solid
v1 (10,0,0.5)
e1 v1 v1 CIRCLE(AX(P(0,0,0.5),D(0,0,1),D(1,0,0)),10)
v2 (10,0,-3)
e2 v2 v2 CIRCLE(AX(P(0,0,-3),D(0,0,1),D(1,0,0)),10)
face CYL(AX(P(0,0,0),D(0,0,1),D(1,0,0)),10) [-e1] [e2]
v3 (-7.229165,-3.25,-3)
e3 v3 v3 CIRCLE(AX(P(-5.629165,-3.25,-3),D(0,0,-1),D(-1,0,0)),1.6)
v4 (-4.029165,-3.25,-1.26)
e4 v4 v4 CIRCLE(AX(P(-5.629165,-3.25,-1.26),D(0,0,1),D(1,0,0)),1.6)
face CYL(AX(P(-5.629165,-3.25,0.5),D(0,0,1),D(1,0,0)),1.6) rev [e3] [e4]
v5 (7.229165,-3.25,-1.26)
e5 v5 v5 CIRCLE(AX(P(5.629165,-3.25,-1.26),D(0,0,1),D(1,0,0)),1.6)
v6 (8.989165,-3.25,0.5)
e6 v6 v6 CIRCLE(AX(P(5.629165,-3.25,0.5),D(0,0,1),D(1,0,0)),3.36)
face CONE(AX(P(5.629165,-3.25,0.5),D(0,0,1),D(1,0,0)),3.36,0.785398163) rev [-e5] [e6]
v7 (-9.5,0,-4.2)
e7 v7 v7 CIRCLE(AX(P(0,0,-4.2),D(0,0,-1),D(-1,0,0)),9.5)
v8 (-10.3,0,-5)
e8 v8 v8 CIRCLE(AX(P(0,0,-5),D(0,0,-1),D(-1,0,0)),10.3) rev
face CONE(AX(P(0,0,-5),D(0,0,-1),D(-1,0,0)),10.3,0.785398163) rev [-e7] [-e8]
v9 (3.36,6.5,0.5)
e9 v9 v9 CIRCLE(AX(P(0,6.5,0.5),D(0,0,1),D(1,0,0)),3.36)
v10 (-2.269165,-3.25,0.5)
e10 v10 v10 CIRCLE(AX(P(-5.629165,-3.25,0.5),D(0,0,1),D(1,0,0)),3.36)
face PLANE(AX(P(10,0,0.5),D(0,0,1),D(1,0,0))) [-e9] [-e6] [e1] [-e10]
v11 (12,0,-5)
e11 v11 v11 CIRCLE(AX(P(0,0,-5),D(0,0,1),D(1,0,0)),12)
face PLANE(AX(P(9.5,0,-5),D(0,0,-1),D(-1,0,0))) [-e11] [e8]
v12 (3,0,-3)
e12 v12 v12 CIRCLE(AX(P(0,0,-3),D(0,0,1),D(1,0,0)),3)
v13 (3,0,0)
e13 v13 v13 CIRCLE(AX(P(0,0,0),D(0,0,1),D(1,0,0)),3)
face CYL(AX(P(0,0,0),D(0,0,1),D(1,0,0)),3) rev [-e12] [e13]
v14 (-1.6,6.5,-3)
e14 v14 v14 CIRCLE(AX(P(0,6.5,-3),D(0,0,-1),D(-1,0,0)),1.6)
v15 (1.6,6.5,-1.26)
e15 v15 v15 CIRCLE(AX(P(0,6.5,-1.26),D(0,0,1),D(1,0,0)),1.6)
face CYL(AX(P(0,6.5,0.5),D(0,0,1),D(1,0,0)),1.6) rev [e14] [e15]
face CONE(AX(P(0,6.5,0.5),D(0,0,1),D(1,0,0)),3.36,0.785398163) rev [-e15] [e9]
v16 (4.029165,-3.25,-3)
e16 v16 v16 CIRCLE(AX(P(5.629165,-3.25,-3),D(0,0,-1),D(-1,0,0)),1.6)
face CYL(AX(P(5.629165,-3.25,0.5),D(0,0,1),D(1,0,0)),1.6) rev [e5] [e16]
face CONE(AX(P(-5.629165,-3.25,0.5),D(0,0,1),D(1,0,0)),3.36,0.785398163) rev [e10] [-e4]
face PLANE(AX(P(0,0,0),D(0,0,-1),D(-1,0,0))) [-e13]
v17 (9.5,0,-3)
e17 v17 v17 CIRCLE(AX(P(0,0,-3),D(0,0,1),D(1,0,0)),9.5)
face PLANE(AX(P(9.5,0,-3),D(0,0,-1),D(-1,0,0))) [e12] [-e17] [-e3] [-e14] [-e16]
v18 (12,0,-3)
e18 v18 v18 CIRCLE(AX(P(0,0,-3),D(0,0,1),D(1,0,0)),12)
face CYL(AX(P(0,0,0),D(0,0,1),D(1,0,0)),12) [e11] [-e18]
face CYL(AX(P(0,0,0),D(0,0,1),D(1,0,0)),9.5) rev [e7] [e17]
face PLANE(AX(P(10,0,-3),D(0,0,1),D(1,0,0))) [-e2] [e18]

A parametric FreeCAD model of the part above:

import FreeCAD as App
import Part
import Sketcher


def edges_at(feature, points):
    """Names of the edges that pass closest to the given points."""
    edges = feature.Shape.Edges
    near = lambda p: min(range(len(edges)), key=lambda i: edges[i].distToShape(Part.Vertex(*p))[0])
    return sorted({f"Edge{near(p) + 1}" for p in points})

doc = App.newDocument("Part")
body = doc.addObject("PartDesign::Body", "Body")

# Sketch on XZ plane
sketch1 = body.newObject("Sketcher::SketchObject", "Sketch")
sketch1.AttachmentSupport = (doc.getObject("XZ_Plane"), [""])
sketch1.MapMode = "FlatFace"
sketch1.addGeometry([
    Part.LineSegment(App.Vector(3, 0, 0), App.Vector(0, 0, 0)),  # 0
    Part.LineSegment(App.Vector(0, 0, 0), App.Vector(0, 0.5, 0)),  # 1
    Part.LineSegment(App.Vector(0, 0.5, 0), App.Vector(10, 0.5, 0)),  # 2
    Part.LineSegment(App.Vector(10, 0.5, 0), App.Vector(10, -3, 0)),  # 3
    Part.LineSegment(App.Vector(10, -3, 0), App.Vector(12, -3, 0)),  # 4
    Part.LineSegment(App.Vector(12, -3, 0), App.Vector(12, -5, 0)),  # 5
    Part.LineSegment(App.Vector(12, -5, 0), App.Vector(9.5, -5, 0)),  # 6
    Part.LineSegment(App.Vector(9.5, -5, 0), App.Vector(9.5, -3, 0)),  # 7
    Part.LineSegment(App.Vector(9.5, -3, 0), App.Vector(3, -3, 0)),  # 8
    Part.LineSegment(App.Vector(3, -3, 0), App.Vector(3, 0, 0)),  # 9
], False)
sketch1.addConstraint([
    Sketcher.Constraint("Coincident", 0, 2, 1, 1),
    Sketcher.Constraint("Coincident", 1, 2, 2, 1),
    Sketcher.Constraint("Coincident", 2, 2, 3, 1),
    Sketcher.Constraint("Coincident", 3, 2, 4, 1),
    Sketcher.Constraint("Coincident", 4, 2, 5, 1),
    Sketcher.Constraint("Coincident", 5, 2, 6, 1),
    Sketcher.Constraint("Coincident", 6, 2, 7, 1),
    Sketcher.Constraint("Coincident", 7, 2, 8, 1),
    Sketcher.Constraint("Coincident", 8, 2, 9, 1),
    Sketcher.Constraint("Coincident", 9, 2, 0, 1),
    Sketcher.Constraint("Horizontal", 0),
    Sketcher.Constraint("Vertical", 1),
    Sketcher.Constraint("Horizontal", 2),
    Sketcher.Constraint("Vertical", 3),
    Sketcher.Constraint("Horizontal", 4),
    Sketcher.Constraint("Vertical", 5),
    Sketcher.Constraint("Horizontal", 6),
    Sketcher.Constraint("Vertical", 7),
    Sketcher.Constraint("Horizontal", 8),
    Sketcher.Constraint("Vertical", 9),
    Sketcher.Constraint("Coincident", 0, 2, -1, 1),
    Sketcher.Constraint("Horizontal", 4, 2, 7, 2),
    Sketcher.Constraint("Equal", 4, 5),
    Sketcher.Constraint("Equal", 0, 9),
    Sketcher.Constraint("DistanceX", 0, 2, 0, 1, 3.0),
    Sketcher.Constraint("DistanceX", 2, 1, 2, 2, 10.0),
    Sketcher.Constraint("DistanceX", 4, 1, 4, 2, 2.0),
    Sketcher.Constraint("DistanceX", 6, 2, 6, 1, 2.5),
    Sketcher.Constraint("DistanceY", 1, 1, 1, 2, 0.5),
])
revolution = body.newObject("PartDesign::Revolution", "Revolution")
revolution.Profile = sketch1
revolution.ReferenceAxis = (sketch1, ["V_Axis"])
revolution.Angle = 360

# Sketch on XY plane
sketch2 = body.newObject("Sketcher::SketchObject", "Sketch001")
sketch2.AttachmentSupport = (doc.getObject("XY_Plane"), [""])
sketch2.MapMode = "FlatFace"
sketch2.AttachmentOffset = App.Placement(App.Vector(0, 0, 0.5), App.Rotation())
sketch2.addGeometry([
    Part.Circle(App.Vector(0, 6.5, 0), App.Vector(0, 0, 1), 1.6),
    Part.Circle(App.Vector(5.629165, -3.25, 0), App.Vector(0, 0, 1), 1.6),
    Part.Circle(App.Vector(-5.629165, -3.25, 0), App.Vector(0, 0, 1), 1.6),
], False)
sketch2.addConstraint([
    Sketcher.Constraint("Equal", 0, 1),
    Sketcher.Constraint("Equal", 1, 2),
    Sketcher.Constraint("Symmetric", 1, 3, 2, 3, -2),
    Sketcher.Constraint("PointOnObject", 0, 3, -2),
    Sketcher.Constraint("Diameter", 0, 3.2),
    Sketcher.Constraint("DistanceY", -1, 1, 0, 3, 6.5),
    Sketcher.Constraint("DistanceY", 1, 3, -1, 1, 3.25),
    Sketcher.Constraint("DistanceX", 2, 3, 1, 3, 11.25833),
])
doc.recompute()
hole = body.newObject("PartDesign::Hole", "Hole")
hole.Profile = sketch2
hole.ThreadType = "None"
hole.Diameter = 3.2
hole.DepthType = "ThroughAll"
hole.HoleCutType = "Countersink"
hole.HoleCutDiameter = 6.72
hole.HoleCutCountersinkAngle = 90
doc.recompute()

chamfer = body.newObject("PartDesign::Chamfer", "Chamfer")
chamfer.Base = (hole, edges_at(hole, [(-9.5, 0, -5)]))
chamfer.Size = 0.8

doc.recompute()
